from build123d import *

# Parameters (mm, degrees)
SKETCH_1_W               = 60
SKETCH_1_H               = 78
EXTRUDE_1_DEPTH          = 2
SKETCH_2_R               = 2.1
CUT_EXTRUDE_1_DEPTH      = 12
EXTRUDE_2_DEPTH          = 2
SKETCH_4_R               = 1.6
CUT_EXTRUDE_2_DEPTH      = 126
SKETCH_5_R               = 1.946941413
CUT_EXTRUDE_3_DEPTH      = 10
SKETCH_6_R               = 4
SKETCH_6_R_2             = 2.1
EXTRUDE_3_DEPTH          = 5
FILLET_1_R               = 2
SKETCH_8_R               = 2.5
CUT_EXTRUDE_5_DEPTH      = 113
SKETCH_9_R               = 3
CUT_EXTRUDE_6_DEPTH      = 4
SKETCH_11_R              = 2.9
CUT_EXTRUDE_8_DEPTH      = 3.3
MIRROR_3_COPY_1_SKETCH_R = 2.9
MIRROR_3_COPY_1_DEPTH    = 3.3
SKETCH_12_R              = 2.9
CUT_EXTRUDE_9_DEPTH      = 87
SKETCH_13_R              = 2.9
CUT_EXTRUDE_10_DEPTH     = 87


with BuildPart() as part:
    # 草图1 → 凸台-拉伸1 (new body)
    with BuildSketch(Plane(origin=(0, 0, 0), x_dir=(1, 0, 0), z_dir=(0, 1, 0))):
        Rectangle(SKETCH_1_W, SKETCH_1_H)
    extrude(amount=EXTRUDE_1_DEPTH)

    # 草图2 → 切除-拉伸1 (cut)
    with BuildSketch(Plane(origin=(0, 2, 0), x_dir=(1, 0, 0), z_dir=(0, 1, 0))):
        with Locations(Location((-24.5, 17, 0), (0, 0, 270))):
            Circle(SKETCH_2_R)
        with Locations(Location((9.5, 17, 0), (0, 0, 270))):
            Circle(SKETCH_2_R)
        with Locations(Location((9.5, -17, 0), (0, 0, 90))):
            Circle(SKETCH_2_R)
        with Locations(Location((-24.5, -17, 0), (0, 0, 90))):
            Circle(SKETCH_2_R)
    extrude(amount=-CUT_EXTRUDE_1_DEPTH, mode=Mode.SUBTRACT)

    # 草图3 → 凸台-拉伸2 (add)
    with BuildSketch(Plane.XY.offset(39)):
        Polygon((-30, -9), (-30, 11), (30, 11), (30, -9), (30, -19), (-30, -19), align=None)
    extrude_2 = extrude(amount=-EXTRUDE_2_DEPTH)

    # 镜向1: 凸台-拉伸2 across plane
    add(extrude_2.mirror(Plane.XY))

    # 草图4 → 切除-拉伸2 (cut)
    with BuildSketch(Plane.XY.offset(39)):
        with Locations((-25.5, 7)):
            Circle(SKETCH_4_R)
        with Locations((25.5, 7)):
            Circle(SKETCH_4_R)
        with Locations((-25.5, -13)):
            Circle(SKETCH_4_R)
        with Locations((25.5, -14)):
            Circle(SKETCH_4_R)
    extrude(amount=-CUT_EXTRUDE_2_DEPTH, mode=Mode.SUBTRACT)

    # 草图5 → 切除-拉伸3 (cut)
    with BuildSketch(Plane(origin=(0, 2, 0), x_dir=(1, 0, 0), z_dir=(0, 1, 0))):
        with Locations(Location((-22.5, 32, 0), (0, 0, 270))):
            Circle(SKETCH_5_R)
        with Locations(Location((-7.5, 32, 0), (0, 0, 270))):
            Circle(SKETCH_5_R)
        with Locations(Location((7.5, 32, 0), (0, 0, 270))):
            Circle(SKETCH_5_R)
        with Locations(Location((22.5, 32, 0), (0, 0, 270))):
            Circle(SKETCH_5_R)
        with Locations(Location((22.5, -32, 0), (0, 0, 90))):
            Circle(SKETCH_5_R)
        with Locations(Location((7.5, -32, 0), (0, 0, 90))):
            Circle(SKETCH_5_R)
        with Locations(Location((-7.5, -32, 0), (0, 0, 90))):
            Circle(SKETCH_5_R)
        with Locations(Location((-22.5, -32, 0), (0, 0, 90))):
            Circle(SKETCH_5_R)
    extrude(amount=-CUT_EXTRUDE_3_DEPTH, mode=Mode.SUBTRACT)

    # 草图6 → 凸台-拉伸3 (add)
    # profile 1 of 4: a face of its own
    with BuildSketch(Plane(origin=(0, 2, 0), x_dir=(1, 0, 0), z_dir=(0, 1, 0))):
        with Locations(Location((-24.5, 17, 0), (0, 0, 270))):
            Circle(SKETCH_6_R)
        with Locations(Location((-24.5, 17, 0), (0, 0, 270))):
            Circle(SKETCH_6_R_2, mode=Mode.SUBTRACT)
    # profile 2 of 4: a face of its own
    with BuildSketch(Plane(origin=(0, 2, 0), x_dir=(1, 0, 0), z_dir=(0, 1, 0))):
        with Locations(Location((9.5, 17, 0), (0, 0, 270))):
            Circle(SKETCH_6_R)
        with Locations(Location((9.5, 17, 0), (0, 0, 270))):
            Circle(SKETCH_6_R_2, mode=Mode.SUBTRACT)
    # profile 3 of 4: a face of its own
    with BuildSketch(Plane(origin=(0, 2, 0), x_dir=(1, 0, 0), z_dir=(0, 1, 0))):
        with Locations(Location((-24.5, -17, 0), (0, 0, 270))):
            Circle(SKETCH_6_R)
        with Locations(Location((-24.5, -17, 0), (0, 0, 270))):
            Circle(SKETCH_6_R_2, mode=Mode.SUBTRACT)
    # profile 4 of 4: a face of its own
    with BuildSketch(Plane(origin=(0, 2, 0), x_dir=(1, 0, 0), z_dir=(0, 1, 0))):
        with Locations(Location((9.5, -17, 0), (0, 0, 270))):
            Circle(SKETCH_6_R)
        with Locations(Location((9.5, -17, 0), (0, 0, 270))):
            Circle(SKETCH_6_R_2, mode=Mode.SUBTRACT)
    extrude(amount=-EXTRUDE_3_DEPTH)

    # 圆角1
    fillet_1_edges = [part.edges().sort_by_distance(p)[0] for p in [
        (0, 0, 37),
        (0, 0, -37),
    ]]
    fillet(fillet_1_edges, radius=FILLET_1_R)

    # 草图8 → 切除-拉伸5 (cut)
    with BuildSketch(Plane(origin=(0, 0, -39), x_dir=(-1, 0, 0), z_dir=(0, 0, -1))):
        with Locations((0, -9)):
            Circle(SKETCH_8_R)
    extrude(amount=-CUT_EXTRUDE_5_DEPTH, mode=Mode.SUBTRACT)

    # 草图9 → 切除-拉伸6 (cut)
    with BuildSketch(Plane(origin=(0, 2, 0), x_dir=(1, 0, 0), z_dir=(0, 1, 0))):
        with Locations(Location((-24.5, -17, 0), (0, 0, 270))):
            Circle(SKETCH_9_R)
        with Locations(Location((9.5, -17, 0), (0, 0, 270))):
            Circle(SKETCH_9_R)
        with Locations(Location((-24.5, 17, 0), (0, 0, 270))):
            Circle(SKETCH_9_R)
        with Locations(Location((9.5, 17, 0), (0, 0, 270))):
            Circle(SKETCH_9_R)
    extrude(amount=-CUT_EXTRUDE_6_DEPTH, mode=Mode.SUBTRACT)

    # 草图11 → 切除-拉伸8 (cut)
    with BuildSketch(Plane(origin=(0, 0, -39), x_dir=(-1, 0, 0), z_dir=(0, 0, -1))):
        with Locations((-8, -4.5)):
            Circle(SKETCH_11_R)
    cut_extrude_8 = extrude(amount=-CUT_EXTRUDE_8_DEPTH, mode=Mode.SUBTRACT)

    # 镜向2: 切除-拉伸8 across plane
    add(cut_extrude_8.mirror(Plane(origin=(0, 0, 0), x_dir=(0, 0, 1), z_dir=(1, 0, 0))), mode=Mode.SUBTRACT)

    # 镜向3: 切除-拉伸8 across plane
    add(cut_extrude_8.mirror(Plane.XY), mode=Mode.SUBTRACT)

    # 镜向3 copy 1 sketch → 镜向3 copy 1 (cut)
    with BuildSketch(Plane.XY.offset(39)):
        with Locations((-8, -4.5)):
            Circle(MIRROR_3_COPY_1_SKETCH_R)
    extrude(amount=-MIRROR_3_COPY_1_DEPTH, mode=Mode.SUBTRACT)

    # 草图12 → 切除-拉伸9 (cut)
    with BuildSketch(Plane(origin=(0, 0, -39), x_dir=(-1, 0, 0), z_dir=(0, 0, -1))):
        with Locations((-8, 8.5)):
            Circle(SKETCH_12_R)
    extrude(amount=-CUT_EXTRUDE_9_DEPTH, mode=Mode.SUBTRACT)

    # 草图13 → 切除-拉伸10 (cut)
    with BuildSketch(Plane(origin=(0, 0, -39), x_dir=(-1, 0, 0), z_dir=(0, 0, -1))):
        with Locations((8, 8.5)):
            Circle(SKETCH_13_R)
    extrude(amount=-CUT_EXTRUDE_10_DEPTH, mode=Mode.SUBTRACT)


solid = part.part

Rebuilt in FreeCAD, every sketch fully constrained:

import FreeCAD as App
import Part
import Sketcher

V = App.Vector
Q = App.Units.Quantity


def edges_at(feature, points):
    """Names of the edges that pass closest to the given points."""
    edges = feature.Shape.Edges
    near = lambda p: min(range(len(edges)), key=lambda i: edges[i].distToShape(Part.Vertex(*p))[0])
    return sorted({f"Edge{near(p) + 1}" for p in points})


def add_polygon(sketch, points):
    """Adds a closed chain of lines whose ends are joined by coincident constraints."""
    first, n = sketch.GeometryCount, len(points)
    for a, b in zip(points, points[1:] + points[:1]):
        sketch.addGeometry(Part.LineSegment(App.Vector(*a, 0), App.Vector(*b, 0)), False)
    for i in range(n):
        sketch.addConstraint(Sketcher.Constraint("Coincident", first + i, 2, first + (i + 1) % n, 1))

doc = App.newDocument("Part")
body = doc.addObject("PartDesign::Body", "Body")

sketch1 = doc.addObject("Sketcher::SketchObject", "Sketch")
body.addObject(sketch1)
sketch1.AttachmentSupport = (doc.XZ_Plane, [""])
sketch1.MapMode = "FlatFace"
add_polygon(sketch1, [(-30, -39), (-30, 39), (30, 39), (30, -39)])
sketch1.addConstraint([
    Sketcher.Constraint("Vertical", 0),
    Sketcher.Constraint("Horizontal", 1),
    Sketcher.Constraint("Vertical", 2),
    Sketcher.Constraint("Horizontal", 3),
    Sketcher.Constraint("Symmetric", 0, 2, 2, 2, -1, 1),
    Sketcher.Constraint("DistanceX", 1, 1, 1, 2, Q("60 mm")),
    Sketcher.Constraint("DistanceY", 0, 1, 0, 2, Q("78 mm")),
])
pad1 = doc.addObject("PartDesign::Pad", "Pad")
body.addObject(pad1)
pad1.Profile = sketch1
pad1.Length = 2
pad1.Reversed = True

sketch2 = doc.addObject("Sketcher::SketchObject", "Sketch001")
body.addObject(sketch2)
sketch2.AttachmentSupport = (doc.XZ_Plane, [""])
sketch2.MapMode = "FlatFace"
sketch2.AttachmentOffset = App.Placement(V(0, 0, -2), App.Rotation())
sketch2.addGeometry([
    Part.Circle(V(-24.5, -17, 0), V(0, 0, 1), 2.1),
    Part.Circle(V(9.5, -17, 0), V(0, 0, 1), 2.1),
    Part.Circle(V(9.5, 17, 0), V(0, 0, 1), 2.1),
    Part.Circle(V(-24.5, 17, 0), V(0, 0, 1), 2.1),
], False)
sketch2.addConstraint([
    Sketcher.Constraint("Equal", 0, 1),
    Sketcher.Constraint("Equal", 1, 2),
    Sketcher.Constraint("Equal", 2, 3),
    Sketcher.Constraint("Symmetric", 1, 3, 2, 3, -1),
    Sketcher.Constraint("Symmetric", 0, 3, 3, 3, -1),
    Sketcher.Constraint("Horizontal", 0, 3, 1, 3),
    Sketcher.Constraint("Diameter", 0, Q("4.2 mm")),
    Sketcher.Constraint("DistanceY", 0, 3, -1, 1, Q("17 mm")),
    Sketcher.Constraint("DistanceX", 0, 3, 1, 3, Q("34 mm")),
    Sketcher.Constraint("DistanceX", 0, 3, -1, 1, Q("24.5 mm")),
])
pocket1 = doc.addObject("PartDesign::Pocket", "Pocket")
body.addObject(pocket1)
pocket1.Profile = sketch2
pocket1.Length = 12
pocket1.Reversed = True

sketch3 = doc.addObject("Sketcher::SketchObject", "Sketch002")
body.addObject(sketch3)
sketch3.AttachmentSupport = (doc.XY_Plane, [""])
sketch3.MapMode = "FlatFace"
sketch3.AttachmentOffset = App.Placement(V(0, 0, 39), App.Rotation())
add_polygon(sketch3, [(-30, 11), (-30, -19), (30, -19), (30, 11)])
sketch3.addConstraint([
    Sketcher.Constraint("Vertical", 0),
    Sketcher.Constraint("Horizontal", 1),
    Sketcher.Constraint("Vertical", 2),
    Sketcher.Constraint("Horizontal", 3),
    Sketcher.Constraint("DistanceX", 1, 1, 1, 2, Q("60 mm")),
    Sketcher.Constraint("DistanceY", 0, 2, 0, 1, Q("30 mm")),
    Sketcher.Constraint("DistanceX", 0, 2, -1, 1, Q("30 mm")),
    Sketcher.Constraint("DistanceY", 0, 2, -1, 1, Q("19 mm")),
])
pad2 = doc.addObject("PartDesign::Pad", "Pad001")
body.addObject(pad2)
pad2.Profile = sketch3
pad2.Length = 2
pad2.Reversed = True
doc.recompute()

mirrored = doc.addObject("PartDesign::Mirrored", "Mirrored")
body.addObject(mirrored)
mirrored.Originals = [pad2]
mirrored.MirrorPlane = (doc.XY_Plane, [""])
body.Tip = mirrored

sketch4 = doc.addObject("Sketcher::SketchObject", "Sketch003")
body.addObject(sketch4)
sketch4.AttachmentSupport = (doc.XY_Plane, [""])
sketch4.MapMode = "FlatFace"
sketch4.AttachmentOffset = App.Placement(V(0, 0, 39), App.Rotation())
sketch4.addGeometry([
    Part.Circle(V(-25.5, 7, 0), V(0, 0, 1), 1.6),
    Part.Circle(V(25.5, 7, 0), V(0, 0, 1), 1.6),
    Part.Circle(V(-25.5, -13, 0), V(0, 0, 1), 1.6),
    Part.Circle(V(25.5, -14, 0), V(0, 0, 1), 1.6),
], False)
sketch4.addConstraint([
    Sketcher.Constraint("Equal", 0, 1),
    Sketcher.Constraint("Equal", 1, 2),
    Sketcher.Constraint("Equal", 2, 3),
    Sketcher.Constraint("Symmetric", 0, 3, 1, 3, -2),
    Sketcher.Constraint("Vertical", 0, 3, 2, 3),
    Sketcher.Constraint("Vertical", 1, 3, 3, 3),
    Sketcher.Constraint("Diameter", 0, Q("3.2 mm")),
    Sketcher.Constraint("DistanceY", -1, 1, 0, 3, Q("7 mm")),
    Sketcher.Constraint("DistanceY", 2, 3, -1, 1, Q("13 mm")),
    Sketcher.Constraint("DistanceY", 3, 3, -1, 1, Q("14 mm")),
    Sketcher.Constraint("DistanceX", 0, 3, 1, 3, Q("51 mm")),
])
pocket2 = doc.addObject("PartDesign::Pocket", "Pocket001")
body.addObject(pocket2)
pocket2.Profile = sketch4
pocket2.Length = 126

sketch5 = doc.addObject("Sketcher::SketchObject", "Sketch004")
body.addObject(sketch5)
sketch5.AttachmentSupport = (doc.XZ_Plane, [""])
sketch5.MapMode = "FlatFace"
sketch5.AttachmentOffset = App.Placement(V(0, 0, -2), App.Rotation())
sketch5.addGeometry([
    Part.Circle(V(-22.5, -32, 0), V(0, 0, 1), 1.9),
    Part.Circle(V(-7.5, -32, 0), V(0, 0, 1), 1.9),
    Part.Circle(V(7.5, -32, 0), V(0, 0, 1), 1.9),
    Part.Circle(V(22.5, -32, 0), V(0, 0, 1), 1.9),
    Part.Circle(V(22.5, 32, 0), V(0, 0, 1), 1.9),
    Part.Circle(V(7.5, 32, 0), V(0, 0, 1), 1.9),
    Part.Circle(V(-7.5, 32, 0), V(0, 0, 1), 1.9),
    Part.Circle(V(-22.5, 32, 0), V(0, 0, 1), 1.9),
], False)
sketch5.addConstraint([
    Sketcher.Constraint("Equal", 0, 1),
    Sketcher.Constraint("Equal", 1, 2),
    Sketcher.Constraint("Equal", 2, 3),
    Sketcher.Constraint("Equal", 3, 4),
    Sketcher.Constraint("Equal", 4, 5),
    Sketcher.Constraint("Equal", 5, 6),
    Sketcher.Constraint("Equal", 6, 7),
    Sketcher.Constraint("Symmetric", 0, 3, 4, 3, -1, 1),
    Sketcher.Constraint("Symmetric", 1, 3, 5, 3, -1, 1),
    Sketcher.Constraint("Symmetric", 2, 3, 6, 3, -1, 1),
    Sketcher.Constraint("Symmetric", 3, 3, 7, 3, -1, 1),
    Sketcher.Constraint("Symmetric", 1, 3, 2, 3, -2),
    Sketcher.Constraint("Symmetric", 0, 3, 3, 3, -2),
    Sketcher.Constraint("Horizontal", 0, 3, 1, 3),
    Sketcher.Constraint("DistanceY", 0, 3, -1, 1, Q("32 mm")),
    Sketcher.Constraint("DistanceX", 0, 3, 1, 3, Q("15 mm")),
    Sketcher.Constraint("DistanceX", 1, 3, 2, 3, Q("15 mm")),
    Sketcher.Constraint("Diameter", 0, Q("3.893883 mm")),
])
pocket3 = doc.addObject("PartDesign::Pocket", "Pocket002")
body.addObject(pocket3)
pocket3.Profile = sketch5
pocket3.Length = 10
pocket3.Reversed = True

sketch6 = doc.addObject("Sketcher::SketchObject", "Sketch005")
body.addObject(sketch6)
sketch6.AttachmentSupport = (doc.XZ_Plane, [""])
sketch6.MapMode = "FlatFace"
sketch6.AttachmentOffset = App.Placement(V(0, 0, -2), App.Rotation())
sketch6.addGeometry([
    Part.Circle(V(-24.5, -17, 0), V(0, 0, 1), 4),
    Part.Circle(V(-24.5, -17, 0), V(0, 0, 1), 2.1),
    Part.Circle(V(9.5, -17, 0), V(0, 0, 1), 4),
    Part.Circle(V(9.5, -17, 0), V(0, 0, 1), 2.1),
    Part.Circle(V(-24.5, 17, 0), V(0, 0, 1), 4),
    Part.Circle(V(-24.5, 17, 0), V(0, 0, 1), 2.1),
    Part.Circle(V(9.5, 17, 0), V(0, 0, 1), 4),
    Part.Circle(V(9.5, 17, 0), V(0, 0, 1), 2.1),
], False)
sketch6.addConstraint([
    Sketcher.Constraint("Coincident", 1, 3, 0, 3),
    Sketcher.Constraint("Coincident", 3, 3, 2, 3),
    Sketcher.Constraint("Coincident", 5, 3, 4, 3),
    Sketcher.Constraint("Coincident", 7, 3, 6, 3),
    Sketcher.Constraint("Equal", 0, 2),
    Sketcher.Constraint("Equal", 1, 3),
    Sketcher.Constraint("Equal", 2, 4),
    Sketcher.Constraint("Equal", 3, 5),
    Sketcher.Constraint("Equal", 4, 6),
    Sketcher.Constraint("Equal", 5, 7),
    Sketcher.Constraint("Symmetric", 0, 3, 4, 3, -1),
    Sketcher.Constraint("Symmetric", 2, 3, 6, 3, -1),
    Sketcher.Constraint("Horizontal", 1, 3, 2, 3),
    Sketcher.Constraint("Diameter", 0, Q("8 mm")),
    Sketcher.Constraint("Diameter", 1, Q("4.2 mm")),
    Sketcher.Constraint("DistanceY", 0, 3, -1, 1, Q("17 mm")),
    Sketcher.Constraint("DistanceX", 0, 3, 2, 3, Q("34 mm")),
    Sketcher.Constraint("DistanceX", 0, 3, -1, 1, Q("24.5 mm")),
])
pad3 = doc.addObject("PartDesign::Pad", "Pad002")
body.addObject(pad3)
pad3.Profile = sketch6
pad3.Length = 5
doc.recompute()

fillet = doc.addObject("PartDesign::Fillet", "Fillet")
body.addObject(fillet)
fillet.Base = (pad3, edges_at(pad3, [(0, 0, 37), (0, 0, -37)]))
fillet.Radius = 2

sketch7 = doc.addObject("Sketcher::SketchObject", "Sketch006")
body.addObject(sketch7)
sketch7.AttachmentSupport = (doc.XY_Plane, [""])
sketch7.MapMode = "FlatFace"
sketch7.AttachmentOffset = App.Placement(V(0, 0, -39), App.Rotation())
sketch7.addGeometry(Part.Circle(V(0, -9, 0), V(0, 0, 1), 2.5), False)
sketch7.addConstraint([
    Sketcher.Constraint("PointOnObject", 0, 3, -2),
    Sketcher.Constraint("Diameter", 0, Q("5 mm")),
    Sketcher.Constraint("DistanceY", 0, 3, -1, 1, Q("9 mm")),
])
pocket4 = doc.addObject("PartDesign::Pocket", "Pocket003")
body.addObject(pocket4)
pocket4.Profile = sketch7
pocket4.Length = 113
pocket4.Reversed = True

sketch8 = doc.addObject("Sketcher::SketchObject", "Sketch007")
body.addObject(sketch8)
sketch8.AttachmentSupport = (doc.XZ_Plane, [""])
sketch8.MapMode = "FlatFace"
sketch8.AttachmentOffset = App.Placement(V(0, 0, -2), App.Rotation())
sketch8.addGeometry([
    Part.Circle(V(-24.5, 17, 0), V(0, 0, 1), 3),
    Part.Circle(V(9.5, 17, 0), V(0, 0, 1), 3),
    Part.Circle(V(-24.5, -17, 0), V(0, 0, 1), 3),
    Part.Circle(V(9.5, -17, 0), V(0, 0, 1), 3),
], False)
sketch8.addConstraint([
    Sketcher.Constraint("Equal", 0, 1),
    Sketcher.Constraint("Equal", 1, 2),
    Sketcher.Constraint("Equal", 2, 3),
    Sketcher.Constraint("Symmetric", 0, 3, 2, 3, -1),
    Sketcher.Constraint("Symmetric", 1, 3, 3, 3, -1),
    Sketcher.Constraint("Horizontal", 0, 3, 1, 3),
    Sketcher.Constraint("Diameter", 0, Q("6 mm")),
    Sketcher.Constraint("DistanceY", -1, 1, 0, 3, Q("17 mm")),
    Sketcher.Constraint("DistanceX", 0, 3, 1, 3, Q("34 mm")),
    Sketcher.Constraint("DistanceX", 0, 3, -1, 1, Q("24.5 mm")),
])
pocket5 = doc.addObject("PartDesign::Pocket", "Pocket004")
body.addObject(pocket5)
pocket5.Profile = sketch8
pocket5.Length = 4
pocket5.Reversed = True

sketch9 = doc.addObject("Sketcher::SketchObject", "Sketch008")
body.addObject(sketch9)
sketch9.AttachmentSupport = (doc.XY_Plane, [""])
sketch9.MapMode = "FlatFace"
sketch9.AttachmentOffset = App.Placement(V(0, 0, -39), App.Rotation())
sketch9.addGeometry(Part.Circle(V(8, -4.5, 0), V(0, 0, 1), 2.9), False)
sketch9.addConstraint([
    Sketcher.Constraint("Diameter", 0, Q("5.8 mm")),
    Sketcher.Constraint("DistanceX", -1, 1, 0, 3, Q("8 mm")),
    Sketcher.Constraint("DistanceY", 0, 3, -1, 1, Q("4.5 mm")),
])
pocket6 = doc.addObject("PartDesign::Pocket", "Pocket005")
body.addObject(pocket6)
pocket6.Profile = sketch9
pocket6.Length = 3.3
pocket6.Reversed = True
doc.recompute()

mirrored2 = doc.addObject("PartDesign::Mirrored", "Mirrored001")
body.addObject(mirrored2)
mirrored2.Originals = [pocket6]
mirrored2.MirrorPlane = (doc.YZ_Plane, [""])
body.Tip = mirrored2
doc.recompute()

mirrored3 = doc.addObject("PartDesign::Mirrored", "Mirrored002")
body.addObject(mirrored3)
mirrored3.Originals = [pocket6]
mirrored3.MirrorPlane = (doc.XY_Plane, [""])
body.Tip = mirrored3

sketch10 = doc.addObject("Sketcher::SketchObject", "Sketch009")
body.addObject(sketch10)
sketch10.AttachmentSupport = (doc.XY_Plane, [""])
sketch10.MapMode = "FlatFace"
sketch10.AttachmentOffset = App.Placement(V(0, 0, 39), App.Rotation())
sketch10.addGeometry(Part.Circle(V(-8, -4.5, 0), V(0, 0, 1), 2.9), False)
sketch10.addConstraint([
    Sketcher.Constraint("Diameter", 0, Q("5.8 mm")),
    Sketcher.Constraint("DistanceX", 0, 3, -1, 1, Q("8 mm")),
    Sketcher.Constraint("DistanceY", 0, 3, -1, 1, Q("4.5 mm")),
])
pocket7 = doc.addObject("PartDesign::Pocket", "Pocket006")
body.addObject(pocket7)
pocket7.Profile = sketch10
pocket7.Length = 3.3

sketch11 = doc.addObject("Sketcher::SketchObject", "Sketch010")
body.addObject(sketch11)
sketch11.AttachmentSupport = (doc.XY_Plane, [""])
sketch11.MapMode = "FlatFace"
sketch11.AttachmentOffset = App.Placement(V(0, 0, -39), App.Rotation())
sketch11.addGeometry(Part.Circle(V(8, 8.5, 0), V(0, 0, 1), 2.9), False)
sketch11.addConstraint([
    Sketcher.Constraint("Diameter", 0, Q("5.8 mm")),
    Sketcher.Constraint("DistanceX", -1, 1, 0, 3, Q("8 mm")),
    Sketcher.Constraint("DistanceY", -1, 1, 0, 3, Q("8.5 mm")),
])
pocket8 = doc.addObject("PartDesign::Pocket", "Pocket007")
body.addObject(pocket8)
pocket8.Profile = sketch11
pocket8.Length = 87
pocket8.Reversed = True

sketch12 = doc.addObject("Sketcher::SketchObject", "Sketch011")
body.addObject(sketch12)
sketch12.AttachmentSupport = (doc.XY_Plane, [""])
sketch12.MapMode = "FlatFace"
sketch12.AttachmentOffset = App.Placement(V(0, 0, -39), App.Rotation())
sketch12.addGeometry(Part.Circle(V(-8, 8.5, 0), V(0, 0, 1), 2.9), False)
sketch12.addConstraint([
    Sketcher.Constraint("Diameter", 0, Q("5.8 mm")),
    Sketcher.Constraint("DistanceX", 0, 3, -1, 1, Q("8 mm")),
    Sketcher.Constraint("DistanceY", -1, 1, 0, 3, Q("8.5 mm")),
])
pocket9 = doc.addObject("PartDesign::Pocket", "Pocket008")
body.addObject(pocket9)
pocket9.Profile = sketch12
pocket9.Length = 87
pocket9.Reversed = True

doc.recompute()
